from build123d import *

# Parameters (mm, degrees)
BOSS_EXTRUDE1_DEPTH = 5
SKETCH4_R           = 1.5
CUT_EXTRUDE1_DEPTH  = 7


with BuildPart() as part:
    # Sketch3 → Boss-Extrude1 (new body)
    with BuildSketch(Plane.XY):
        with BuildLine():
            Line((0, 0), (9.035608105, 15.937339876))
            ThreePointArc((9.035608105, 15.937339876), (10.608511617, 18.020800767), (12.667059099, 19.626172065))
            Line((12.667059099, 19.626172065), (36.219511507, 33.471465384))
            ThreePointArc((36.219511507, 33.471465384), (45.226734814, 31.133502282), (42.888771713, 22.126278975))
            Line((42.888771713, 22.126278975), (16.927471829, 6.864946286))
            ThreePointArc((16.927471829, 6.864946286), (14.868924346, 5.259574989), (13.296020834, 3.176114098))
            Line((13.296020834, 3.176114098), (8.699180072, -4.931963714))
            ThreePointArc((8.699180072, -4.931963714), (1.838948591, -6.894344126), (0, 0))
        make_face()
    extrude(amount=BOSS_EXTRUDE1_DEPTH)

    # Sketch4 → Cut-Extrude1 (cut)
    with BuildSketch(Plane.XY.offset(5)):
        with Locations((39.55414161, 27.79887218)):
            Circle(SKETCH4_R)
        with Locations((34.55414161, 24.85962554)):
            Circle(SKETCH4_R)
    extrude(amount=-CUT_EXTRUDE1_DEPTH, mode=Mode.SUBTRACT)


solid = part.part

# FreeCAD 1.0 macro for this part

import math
import FreeCAD as App
import Part
import Sketcher
from FreeCAD import Vector

doc = App.newDocument("Part")
body = doc.addObject("PartDesign::Body", "Body")

# Sketch on XY plane
sketch1 = doc.addObject("Sketcher::SketchObject", "Sketch")
body.addObject(sketch1)
sketch1.AttachmentSupport = (doc.XY_Plane, [""])
sketch1.MapMode = "FlatFace"
sketch1.addGeometry([
    Part.LineSegment(Vector(9, 16, 0), Vector(0, 0, 0)),  # 0
    Part.ArcOfCircle(Part.Circle(Vector(4, -3, 0), Vector(0, 0, 1), 5), math.radians(149), math.radians(331)),  # 1
    Part.LineSegment(Vector(9, -5, 0), Vector(13, 3, 0)),  # 2
    Part.ArcOfCircle(Part.Circle(Vector(22, -2, 0), Vector(0, 0, 1), 10), math.radians(120), math.radians(150)),  # 3
    Part.LineSegment(Vector(17, 7, 0), Vector(43, 22, 0)),  # 4
    Part.ArcOfCircle(Part.Circle(Vector(40, 28, 0), Vector(0, 0, 1), 7), math.radians(-60), math.radians(120)),  # 5
    Part.LineSegment(Vector(36, 33, 0), Vector(13, 20, 0)),  # 6
    Part.ArcOfCircle(Part.Circle(Vector(18, 11, 0), Vector(0, 0, 1), 10), math.radians(120), math.radians(150)),  # 7
], False)
sketch1.addConstraint([
    Sketcher.Constraint("Coincident", 0, 2, 1, 1),
    Sketcher.Constraint("Coincident", 1, 2, 2, 1),
    Sketcher.Constraint("Tangent", 2, 2, 3, 2),
    Sketcher.Constraint("Tangent", 3, 1, 4, 1),
    Sketcher.Constraint("Tangent", 4, 2, 5, 1),
    Sketcher.Constraint("Tangent", 5, 2, 6, 1),
    Sketcher.Constraint("Tangent", 6, 2, 7, 1),
    Sketcher.Constraint("Tangent", 7, 2, 0, 1),
    Sketcher.Constraint("Coincident", 0, 2, -1, 1),
    Sketcher.Constraint("Equal", 3, 7),
    Sketcher.Constraint("Parallel", 0, 2),
    Sketcher.Constraint("Parallel", 4, 6),
    Sketcher.Constraint("Radius", 3, 10.0),
    Sketcher.Constraint("Radius", 1, 5.000805),
    Sketcher.Constraint("Radius", 5, 6.580127),
    Sketcher.Constraint("DistanceY", 1, 3, 3, 1, 9.409),
    Sketcher.Constraint("DistanceX", -1, 1, 3, 3, 21.995201),
    Sketcher.Constraint("DistanceX", 3, 1, 4, 2, 25.9613),
    Sketcher.Constraint("Distance", 0, 18.320508),
    Sketcher.Constraint("Distance", 2, 9.320508),
    Sketcher.Constraint("Distance", 6, 27.320508),
])
pad1 = doc.addObject("PartDesign::Pad", "Pad")
body.addObject(pad1)
pad1.Profile = sketch1
pad1.Length = 5

# Sketch on XY plane
sketch2 = doc.addObject("Sketcher::SketchObject", "Sketch001")
body.addObject(sketch2)
sketch2.AttachmentSupport = (doc.XY_Plane, [""])
sketch2.MapMode = "FlatFace"
sketch2.AttachmentOffset = App.Placement(Vector(0, 0, 5), App.Rotation())
sketch2.addGeometry([
    Part.Circle(Vector(39.6, 27.8, 0), Vector(0, 0, 1), 1.5),
    Part.Circle(Vector(34.6, 24.9, 0), Vector(0, 0, 1), 1.5),
], False)
sketch2.addConstraint([
    Sketcher.Constraint("Equal", 0, 1),
    Sketcher.Constraint("Diameter", 0, 3.0),
    Sketcher.Constraint("DistanceX", 1, 3, 0, 3, 5.0),
    Sketcher.Constraint("DistanceX", -1, 1, 0, 3, 39.554142),
    Sketcher.Constraint("DistanceY", -1, 1, 0, 3, 27.798872),
    Sketcher.Constraint("DistanceY", -1, 1, 1, 3, 24.859626),
])
pocket1 = doc.addObject("PartDesign::Pocket", "Pocket")
body.addObject(pocket1)
pocket1.Profile = sketch2
pocket1.Length = 7

doc.recompute()
